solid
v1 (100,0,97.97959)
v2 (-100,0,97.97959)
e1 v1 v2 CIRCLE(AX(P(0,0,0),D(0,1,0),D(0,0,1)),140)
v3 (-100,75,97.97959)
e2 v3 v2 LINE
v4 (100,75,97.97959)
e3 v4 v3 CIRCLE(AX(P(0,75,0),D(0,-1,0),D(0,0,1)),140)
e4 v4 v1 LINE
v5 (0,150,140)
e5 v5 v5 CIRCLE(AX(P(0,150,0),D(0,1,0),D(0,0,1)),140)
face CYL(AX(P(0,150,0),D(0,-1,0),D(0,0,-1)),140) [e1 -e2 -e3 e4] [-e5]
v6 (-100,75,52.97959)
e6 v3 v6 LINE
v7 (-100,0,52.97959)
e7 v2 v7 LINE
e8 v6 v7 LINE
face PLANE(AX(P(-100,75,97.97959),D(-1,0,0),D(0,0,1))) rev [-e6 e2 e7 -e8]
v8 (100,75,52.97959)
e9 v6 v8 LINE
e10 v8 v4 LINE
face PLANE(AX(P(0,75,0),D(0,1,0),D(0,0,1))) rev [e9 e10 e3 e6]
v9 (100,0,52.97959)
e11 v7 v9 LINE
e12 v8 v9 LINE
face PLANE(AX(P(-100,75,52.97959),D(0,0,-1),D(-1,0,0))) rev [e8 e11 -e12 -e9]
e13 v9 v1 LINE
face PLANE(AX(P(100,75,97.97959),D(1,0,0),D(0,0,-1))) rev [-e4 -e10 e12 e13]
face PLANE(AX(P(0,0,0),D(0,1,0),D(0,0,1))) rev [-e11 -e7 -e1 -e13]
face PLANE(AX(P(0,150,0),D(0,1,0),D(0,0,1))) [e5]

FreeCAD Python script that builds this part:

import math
import FreeCAD as App
import Part
import Sketcher
Q = App.Units.Quantity

doc = App.newDocument("Part")
body = doc.addObject("PartDesign::Body", "Body")

sketch1 = body.newObject("Sketcher::SketchObject", "Sketch")
sketch1.AttachmentSupport = (doc.getObject("XZ_Plane"), [""])
sketch1.MapMode = "FlatFace"
sketch1.addGeometry(Part.Circle(App.Vector(0, 0, 0), App.Vector(0, 0, 1), 140), False)
sketch1.addConstraint([
    Sketcher.Constraint("Coincident", 0, 3, -1, 1),
    Sketcher.Constraint("Diameter", 0, Q("280 mm")),
])
pad1 = body.newObject("PartDesign::Pad", "Pad")
pad1.Profile = sketch1
pad1.Length = 150
pad1.Reversed = True

sketch2 = body.newObject("Sketcher::SketchObject", "Sketch001")
sketch2.AttachmentSupport = (doc.getObject("XZ_Plane"), [""])
sketch2.MapMode = "FlatFace"
sketch2.addGeometry([
    Part.LineSegment(App.Vector(-100, 98, 0), App.Vector(-100, 53, 0)),
    Part.LineSegment(App.Vector(-100, 53, 0), App.Vector(100, 53, 0)),
    Part.LineSegment(App.Vector(100, 53, 0), App.Vector(100, 98, 0)),
    Part.ArcOfCircle(Part.Circle(App.Vector(0, 0, 0), App.Vector(0, 0, 1), 140), math.radians(44), math.radians(136)),
], False)
sketch2.addConstraint([
    Sketcher.Constraint("Coincident", 0, 2, 1, 1),
    Sketcher.Constraint("Coincident", 1, 2, 2, 1),
    Sketcher.Constraint("Coincident", 2, 2, 3, 1),
    Sketcher.Constraint("Coincident", 3, 2, 0, 1),
    Sketcher.Constraint("Vertical", 0),
    Sketcher.Constraint("Horizontal", 1),
    Sketcher.Constraint("Vertical", 2),
    Sketcher.Constraint("Coincident", 3, 3, -1, 1),
    Sketcher.Constraint("Horizontal", 2, 2, 3, 2),
    Sketcher.Constraint("Radius", 3, Q("140 mm")),
    Sketcher.Constraint("DistanceX", 1, 1, 1, 2, Q("200 mm")),
    Sketcher.Constraint("DistanceY", 0, 2, 0, 1, Q("45 mm")),
])
pocket1 = body.newObject("PartDesign::Pocket", "Pocket")
pocket1.Profile = sketch2
pocket1.Length = 75

doc.recompute()
